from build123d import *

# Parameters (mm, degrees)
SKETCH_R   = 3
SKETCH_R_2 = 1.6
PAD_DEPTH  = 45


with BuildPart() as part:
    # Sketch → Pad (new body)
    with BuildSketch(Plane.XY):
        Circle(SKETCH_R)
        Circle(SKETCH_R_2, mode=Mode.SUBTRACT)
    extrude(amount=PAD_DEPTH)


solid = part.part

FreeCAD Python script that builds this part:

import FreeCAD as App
import Part
import Sketcher
Q = App.Units.Quantity

doc = App.newDocument("Part")
params = doc.addObject("Spreadsheet::Sheet", "Params")
for row, (alias, value) in enumerate([
    ("sketch1_diameter", "6 mm"),
    ("sketch1_diameter2", "3.2 mm"),
    ("pad1_length", "45 mm"),
], start=1):
    params.set(f"A{row}", alias)
    params.set(f"B{row}", "=" + value)
    params.setAlias(f"B{row}", alias)

body = doc.addObject("PartDesign::Body", "Body")

sketch1 = body.newObject("Sketcher::SketchObject", "Sketch")
sketch1.AttachmentSupport = (doc.getObject("XY_Plane"), [""])
sketch1.MapMode = "FlatFace"
sketch1.addGeometry(Part.Circle(App.Vector(0, 0, 0), App.Vector(0, 0, 1), 3), False)
sketch1.addGeometry(Part.Circle(App.Vector(0, 0, 0), App.Vector(0, 0, 1), 1.6), False)
sketch1.addConstraint(Sketcher.Constraint("Coincident", 0, 3, -1, 1))
sketch1.addConstraint(Sketcher.Constraint("Coincident", 1, 3, -1, 1))
sketch1.addConstraint(Sketcher.Constraint("Diameter", 0, Q("6 mm")))
sketch1.addConstraint(Sketcher.Constraint("Diameter", 1, Q("3.2 mm")))
sketch1.setExpression("Constraints[2]", "Params.sketch1_diameter")
sketch1.setExpression("Constraints[3]", "Params.sketch1_diameter2")
pad1 = body.newObject("PartDesign::Pad", "Pad")
pad1.Profile = sketch1
pad1.setExpression("Length", "Params.pad1_length")

doc.recompute()
